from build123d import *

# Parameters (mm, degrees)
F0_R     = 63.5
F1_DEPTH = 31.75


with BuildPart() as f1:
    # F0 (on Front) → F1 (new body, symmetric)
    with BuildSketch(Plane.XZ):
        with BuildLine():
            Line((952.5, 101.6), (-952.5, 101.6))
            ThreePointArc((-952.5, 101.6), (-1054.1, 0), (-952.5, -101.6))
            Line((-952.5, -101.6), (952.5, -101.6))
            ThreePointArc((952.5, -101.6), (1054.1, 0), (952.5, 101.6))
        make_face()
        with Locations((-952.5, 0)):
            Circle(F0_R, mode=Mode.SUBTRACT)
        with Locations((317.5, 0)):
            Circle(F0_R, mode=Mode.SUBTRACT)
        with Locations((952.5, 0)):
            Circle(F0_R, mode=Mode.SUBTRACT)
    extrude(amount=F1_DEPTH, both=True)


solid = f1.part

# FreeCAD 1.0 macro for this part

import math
import FreeCAD as App
import Part
import Sketcher

V = App.Vector
Q = App.Units.Quantity

doc = App.newDocument("Part")
body = doc.addObject("PartDesign::Body", "Body")

sketch1 = doc.addObject("Sketcher::SketchObject", "Sketch")
body.addObject(sketch1)
sketch1.AttachmentSupport = (doc.XZ_Plane, [""])
sketch1.MapMode = "FlatFace"
sketch1.addGeometry(Part.LineSegment(V(952.5, 101.6, 0), V(-952.5, 101.6, 0)), False)
sketch1.addGeometry(Part.ArcOfCircle(Part.Circle(V(-952.5, 0, 0), V(0, 0, 1), 101.6), math.radians(90), math.radians(270)), False)
sketch1.addGeometry(Part.LineSegment(V(-952.5, -101.6, 0), V(952.5, -101.6, 0)), False)
sketch1.addGeometry(Part.ArcOfCircle(Part.Circle(V(952.5, 0, 0), V(0, 0, 1), 101.6), math.radians(-90), math.radians(90)), False)
sketch1.addGeometry(Part.Circle(V(-952.5, 0, 0), V(0, 0, 1), 63.5), False)
sketch1.addGeometry(Part.Circle(V(317.5, 0, 0), V(0, 0, 1), 63.5), False)
sketch1.addGeometry(Part.Circle(V(952.5, 0, 0), V(0, 0, 1), 63.5), False)
sketch1.addConstraint(Sketcher.Constraint("Tangent", 0, 2, 1, 1))
sketch1.addConstraint(Sketcher.Constraint("Tangent", 1, 2, 2, 1))
sketch1.addConstraint(Sketcher.Constraint("Tangent", 2, 2, 3, 1))
sketch1.addConstraint(Sketcher.Constraint("Tangent", 3, 2, 0, 1))
sketch1.addConstraint(Sketcher.Constraint("Horizontal", 0))
sketch1.addConstraint(Sketcher.Constraint("Horizontal", 2))
sketch1.addConstraint(Sketcher.Constraint("Coincident", 4, 3, 1, 3))
sketch1.addConstraint(Sketcher.Constraint("Coincident", 6, 3, 3, 3))
sketch1.addConstraint(Sketcher.Constraint("Equal", 4, 5))
sketch1.addConstraint(Sketcher.Constraint("Equal", 5, 6))
sketch1.addConstraint(Sketcher.Constraint("Symmetric", 1, 3, 3, 3, -1, 1))
sketch1.addConstraint(Sketcher.Constraint("PointOnObject", 5, 3, -1))
sketch1.addConstraint(Sketcher.Constraint("Diameter", 4, Q("5 in")))
sketch1.addConstraint(Sketcher.Constraint("Radius", 1, Q("4 in")))
sketch1.addConstraint(Sketcher.Constraint("DistanceX", 0, 2, 0, 1, Q("75 in")))
sketch1.addConstraint(Sketcher.Constraint("DistanceX", 5, 3, 3, 3, Q("25 in")))
pad1 = doc.addObject("PartDesign::Pad", "Pad")
body.addObject(pad1)
pad1.Profile = sketch1
pad1.Length = Q("2.5 in")
pad1.Midplane = True

doc.recompute()
